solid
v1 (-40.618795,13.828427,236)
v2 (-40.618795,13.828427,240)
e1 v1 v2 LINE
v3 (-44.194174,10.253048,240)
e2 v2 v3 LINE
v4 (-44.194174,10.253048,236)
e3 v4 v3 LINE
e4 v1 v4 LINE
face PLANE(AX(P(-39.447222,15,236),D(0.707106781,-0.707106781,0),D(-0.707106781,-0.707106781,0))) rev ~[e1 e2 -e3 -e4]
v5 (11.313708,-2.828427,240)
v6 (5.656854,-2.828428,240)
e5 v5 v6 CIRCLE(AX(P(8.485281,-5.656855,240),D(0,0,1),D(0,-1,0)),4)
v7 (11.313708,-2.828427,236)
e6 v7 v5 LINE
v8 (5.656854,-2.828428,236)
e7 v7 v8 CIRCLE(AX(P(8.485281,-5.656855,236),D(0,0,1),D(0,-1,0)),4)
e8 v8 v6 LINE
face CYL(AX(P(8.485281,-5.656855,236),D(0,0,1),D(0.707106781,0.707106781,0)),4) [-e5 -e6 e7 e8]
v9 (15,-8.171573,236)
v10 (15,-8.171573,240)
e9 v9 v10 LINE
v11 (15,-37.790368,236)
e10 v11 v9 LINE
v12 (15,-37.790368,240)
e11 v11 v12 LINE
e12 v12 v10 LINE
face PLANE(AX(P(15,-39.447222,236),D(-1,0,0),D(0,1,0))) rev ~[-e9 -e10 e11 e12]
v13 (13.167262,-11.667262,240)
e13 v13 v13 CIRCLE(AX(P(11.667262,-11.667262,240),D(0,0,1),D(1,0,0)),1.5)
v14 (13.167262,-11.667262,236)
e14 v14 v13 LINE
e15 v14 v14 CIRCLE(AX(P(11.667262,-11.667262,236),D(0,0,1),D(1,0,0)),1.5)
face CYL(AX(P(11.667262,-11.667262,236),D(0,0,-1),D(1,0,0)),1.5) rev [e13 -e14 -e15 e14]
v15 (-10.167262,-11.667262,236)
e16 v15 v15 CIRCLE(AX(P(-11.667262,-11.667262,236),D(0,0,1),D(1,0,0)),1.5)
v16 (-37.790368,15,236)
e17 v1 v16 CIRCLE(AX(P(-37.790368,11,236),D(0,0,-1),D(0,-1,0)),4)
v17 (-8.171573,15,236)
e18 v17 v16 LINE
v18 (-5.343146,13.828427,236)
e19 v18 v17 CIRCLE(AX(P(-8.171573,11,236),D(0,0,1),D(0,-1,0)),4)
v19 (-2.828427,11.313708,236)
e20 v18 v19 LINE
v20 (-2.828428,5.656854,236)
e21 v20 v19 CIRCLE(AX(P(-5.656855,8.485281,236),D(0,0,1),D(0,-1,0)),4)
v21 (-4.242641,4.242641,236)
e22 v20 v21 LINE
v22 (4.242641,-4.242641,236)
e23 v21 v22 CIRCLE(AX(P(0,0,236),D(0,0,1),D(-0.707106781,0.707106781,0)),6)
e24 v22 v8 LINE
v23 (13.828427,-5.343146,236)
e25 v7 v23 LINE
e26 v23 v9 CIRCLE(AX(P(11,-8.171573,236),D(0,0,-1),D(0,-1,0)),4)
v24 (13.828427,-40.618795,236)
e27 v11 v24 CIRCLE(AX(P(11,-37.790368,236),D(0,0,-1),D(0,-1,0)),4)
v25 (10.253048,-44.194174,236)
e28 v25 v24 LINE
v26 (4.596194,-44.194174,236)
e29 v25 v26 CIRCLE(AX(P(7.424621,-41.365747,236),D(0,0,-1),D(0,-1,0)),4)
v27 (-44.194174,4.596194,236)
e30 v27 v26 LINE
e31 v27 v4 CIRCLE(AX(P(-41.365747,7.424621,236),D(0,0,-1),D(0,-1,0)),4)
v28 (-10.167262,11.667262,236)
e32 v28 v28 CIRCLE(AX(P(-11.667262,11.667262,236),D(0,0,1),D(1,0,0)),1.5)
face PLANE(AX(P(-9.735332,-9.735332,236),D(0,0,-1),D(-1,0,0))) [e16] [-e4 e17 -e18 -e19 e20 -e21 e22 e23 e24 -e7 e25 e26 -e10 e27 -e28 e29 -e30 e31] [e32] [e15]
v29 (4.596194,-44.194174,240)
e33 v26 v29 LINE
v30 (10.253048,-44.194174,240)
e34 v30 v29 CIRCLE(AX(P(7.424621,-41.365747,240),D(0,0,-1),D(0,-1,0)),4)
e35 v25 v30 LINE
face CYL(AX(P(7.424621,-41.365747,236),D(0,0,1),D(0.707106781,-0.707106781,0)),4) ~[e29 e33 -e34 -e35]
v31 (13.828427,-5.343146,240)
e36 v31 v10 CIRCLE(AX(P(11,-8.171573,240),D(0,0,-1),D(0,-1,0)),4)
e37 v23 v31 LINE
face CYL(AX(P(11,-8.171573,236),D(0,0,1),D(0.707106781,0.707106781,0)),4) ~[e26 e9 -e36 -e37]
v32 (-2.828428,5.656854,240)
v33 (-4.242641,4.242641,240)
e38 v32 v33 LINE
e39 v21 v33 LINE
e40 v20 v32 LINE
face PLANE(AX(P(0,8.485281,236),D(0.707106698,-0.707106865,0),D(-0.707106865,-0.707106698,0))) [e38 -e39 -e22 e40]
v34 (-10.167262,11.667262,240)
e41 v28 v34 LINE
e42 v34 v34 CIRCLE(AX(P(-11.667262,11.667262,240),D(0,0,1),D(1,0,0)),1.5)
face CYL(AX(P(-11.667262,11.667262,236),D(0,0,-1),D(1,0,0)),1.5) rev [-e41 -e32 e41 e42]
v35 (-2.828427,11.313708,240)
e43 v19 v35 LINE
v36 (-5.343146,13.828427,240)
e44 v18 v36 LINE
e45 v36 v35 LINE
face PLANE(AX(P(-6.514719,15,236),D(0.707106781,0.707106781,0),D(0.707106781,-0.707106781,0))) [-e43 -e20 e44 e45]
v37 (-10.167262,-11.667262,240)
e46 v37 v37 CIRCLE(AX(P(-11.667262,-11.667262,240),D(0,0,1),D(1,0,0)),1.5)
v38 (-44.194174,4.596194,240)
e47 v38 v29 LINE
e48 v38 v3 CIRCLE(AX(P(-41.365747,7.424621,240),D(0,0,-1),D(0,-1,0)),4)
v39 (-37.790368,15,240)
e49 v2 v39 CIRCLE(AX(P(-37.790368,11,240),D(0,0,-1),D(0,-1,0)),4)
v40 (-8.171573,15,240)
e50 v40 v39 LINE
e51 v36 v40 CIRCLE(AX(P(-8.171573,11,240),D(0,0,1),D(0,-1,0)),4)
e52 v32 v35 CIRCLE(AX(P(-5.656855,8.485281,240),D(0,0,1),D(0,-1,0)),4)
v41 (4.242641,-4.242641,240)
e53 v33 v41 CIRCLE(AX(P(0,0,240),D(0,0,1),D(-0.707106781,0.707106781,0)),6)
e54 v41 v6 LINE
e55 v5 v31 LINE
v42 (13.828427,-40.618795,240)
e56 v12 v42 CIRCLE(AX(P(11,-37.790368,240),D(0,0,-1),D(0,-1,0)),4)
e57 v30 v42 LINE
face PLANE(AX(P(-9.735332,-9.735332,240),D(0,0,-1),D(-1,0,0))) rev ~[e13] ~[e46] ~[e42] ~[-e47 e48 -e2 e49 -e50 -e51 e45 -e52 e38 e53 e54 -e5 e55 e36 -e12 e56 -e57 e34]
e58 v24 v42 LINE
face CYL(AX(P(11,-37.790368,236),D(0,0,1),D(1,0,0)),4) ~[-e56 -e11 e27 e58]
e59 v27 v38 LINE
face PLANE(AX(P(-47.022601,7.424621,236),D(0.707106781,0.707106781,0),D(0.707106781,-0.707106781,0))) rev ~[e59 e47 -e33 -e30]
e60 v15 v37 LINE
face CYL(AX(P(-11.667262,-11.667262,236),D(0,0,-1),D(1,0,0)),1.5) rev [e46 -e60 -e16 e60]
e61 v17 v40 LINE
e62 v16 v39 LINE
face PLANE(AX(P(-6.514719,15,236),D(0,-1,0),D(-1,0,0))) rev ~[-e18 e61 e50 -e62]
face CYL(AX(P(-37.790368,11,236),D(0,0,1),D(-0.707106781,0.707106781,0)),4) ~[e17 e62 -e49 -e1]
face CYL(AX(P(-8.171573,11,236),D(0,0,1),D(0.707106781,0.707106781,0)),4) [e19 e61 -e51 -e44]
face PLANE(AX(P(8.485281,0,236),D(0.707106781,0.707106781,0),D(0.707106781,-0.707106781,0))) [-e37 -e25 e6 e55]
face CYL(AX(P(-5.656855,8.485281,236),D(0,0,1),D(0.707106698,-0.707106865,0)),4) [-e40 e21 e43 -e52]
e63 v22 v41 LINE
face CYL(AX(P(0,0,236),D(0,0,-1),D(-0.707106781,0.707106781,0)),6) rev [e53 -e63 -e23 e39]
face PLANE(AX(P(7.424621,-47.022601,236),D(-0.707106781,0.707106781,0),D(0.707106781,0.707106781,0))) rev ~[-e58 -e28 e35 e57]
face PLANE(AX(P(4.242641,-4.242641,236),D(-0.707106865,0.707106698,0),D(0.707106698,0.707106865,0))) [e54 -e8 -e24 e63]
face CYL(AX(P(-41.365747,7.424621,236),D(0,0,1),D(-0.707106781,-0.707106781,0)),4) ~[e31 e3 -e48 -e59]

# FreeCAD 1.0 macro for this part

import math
import FreeCAD as App
import Part
import Sketcher

V = App.Vector
Q = App.Units.Quantity


def edges_at(feature, points):
    """Names of the edges that pass closest to the given points."""
    edges = feature.Shape.Edges
    near = lambda p: min(range(len(edges)), key=lambda i: edges[i].distToShape(Part.Vertex(*p))[0])
    return sorted({f"Edge{near(p) + 1}" for p in points})

doc = App.newDocument("Part")
body = doc.addObject("PartDesign::Body", "Body")

# Sketch on XY plane
sketch1 = doc.addObject("Sketcher::SketchObject", "Sketch")
body.addObject(sketch1)
sketch1.AttachmentSupport = (doc.XY_Plane, [""])
sketch1.MapMode = "FlatFace"
sketch1.addGeometry([
    Part.LineSegment(V(15, -6.514719, 0), V(8.485281, 0, 0)),  # 0
    Part.LineSegment(V(8.485281, 0, 0), V(4.242641, -4.242641, 0)),  # 1
    Part.ArcOfCircle(Part.Circle(V(0, 0, 0), V(0, 0, 1), 6), math.radians(135), math.radians(315)),  # 2
    Part.LineSegment(V(-4.242641, 4.242641, 0), V(0, 8.485281, 0)),  # 3
    Part.LineSegment(V(0, 8.485281, 0), V(-6.514719, 15, 0)),  # 4
    Part.LineSegment(V(-6.514719, 15, 0), V(-39.447222, 15, 0)),  # 5
    Part.LineSegment(V(-39.447222, 15, 0), V(-47.022601, 7.424621, 0)),  # 6
    Part.LineSegment(V(-47.022601, 7.424621, 0), V(7.424621, -47.022601, 0)),  # 7
    Part.LineSegment(V(7.424621, -47.022601, 0), V(15, -39.447222, 0)),  # 8
    Part.LineSegment(V(15, -39.447222, 0), V(15, -6.514719, 0)),  # 9
    Part.Circle(V(11.667262, -11.667262, 0), V(0, 0, 1), 1.5),  # 10
    Part.Circle(V(-11.667262, -11.667262, 0), V(0, 0, 1), 1.5),  # 11
    Part.Circle(V(-11.667262, 11.667262, 0), V(0, 0, 1), 1.5),  # 12
], False)
sketch1.addConstraint([
    Sketcher.Constraint("Coincident", 0, 2, 1, 1),
    Sketcher.Constraint("Tangent", 1, 2, 2, 2),
    Sketcher.Constraint("Tangent", 2, 1, 3, 1),
    Sketcher.Constraint("Coincident", 3, 2, 4, 1),
    Sketcher.Constraint("Coincident", 4, 2, 5, 1),
    Sketcher.Constraint("Coincident", 5, 2, 6, 1),
    Sketcher.Constraint("Coincident", 6, 2, 7, 1),
    Sketcher.Constraint("Coincident", 7, 2, 8, 1),
    Sketcher.Constraint("Coincident", 8, 2, 9, 1),
    Sketcher.Constraint("Coincident", 9, 2, 0, 1),
    Sketcher.Constraint("Horizontal", 5),
    Sketcher.Constraint("Vertical", 9),
    Sketcher.Constraint("Coincident", 2, 3, -1, 1),
    Sketcher.Constraint("Equal", 10, 11),
    Sketcher.Constraint("Equal", 11, 12),
    Sketcher.Constraint("Symmetric", 10, 3, 12, 3, -1, 1),
    Sketcher.Constraint("Symmetric", 10, 3, 11, 3, -2),
    Sketcher.Constraint("PointOnObject", 0, 2, -1),
    Sketcher.Constraint("PointOnObject", 3, 2, -2),
    Sketcher.Constraint("Perpendicular", 0, 1),
    Sketcher.Constraint("Parallel", 1, 3),
    Sketcher.Constraint("Perpendicular", 3, 4),
    Sketcher.Constraint("Perpendicular", 4, 6),
    Sketcher.Constraint("Perpendicular", 6, 7),
    Sketcher.Constraint("Perpendicular", 7, 8),
    Sketcher.Constraint("Equal", 5, 9),
    Sketcher.Constraint("Equal", 1, 3),
    Sketcher.Constraint("Equal", 0, 4),
    Sketcher.Constraint("Diameter", 10, Q("3 mm")),
    Sketcher.Constraint("Radius", 2, Q("6 mm")),
    Sketcher.Constraint("Distance", 7, Q("77 mm")),
    Sketcher.Constraint("DistanceY", -1, 1, 4, 2, Q("15 mm")),
    Sketcher.Constraint("DistanceX", 6, 2, -1, 1, Q("47.022601 mm")),
    Sketcher.Constraint("DistanceX", -1, 1, 10, 3, Q("11.667262 mm")),
    Sketcher.Constraint("DistanceY", 10, 3, -1, 1, Q("11.667262 mm")),
])
pad1 = doc.addObject("PartDesign::Pad", "Pad")
body.addObject(pad1)
pad1.Profile = sketch1
pad1.Length = 4
doc.recompute()

fillet = doc.addObject("PartDesign::Fillet", "Fillet")
body.addObject(fillet)
fillet.Base = (pad1, edges_at(pad1, [
    (7.425, -47.023, 2),
    (15, -39.447, 2),
    (-47.023, 7.425, 2),
    (-39.447, 15, 2),
    (15, -6.515, 2),
    (-6.515, 15, 2),
    (8.485, 0, 2),
    (0, 8.485, 2),
]))
fillet.Radius = 4
body2 = doc.addObject("PartDesign::Body", "Body001")
doc.recompute()

body.Placement = App.Placement(V(0, 0, 236), App.Rotation(V(0, 0, 1), 0))
boolean = doc.addObject("PartDesign::Boolean", "Boolean")
body2.addObject(boolean)
boolean.Type = "Fuse"
boolean.addObjects([body])

doc.recompute()
